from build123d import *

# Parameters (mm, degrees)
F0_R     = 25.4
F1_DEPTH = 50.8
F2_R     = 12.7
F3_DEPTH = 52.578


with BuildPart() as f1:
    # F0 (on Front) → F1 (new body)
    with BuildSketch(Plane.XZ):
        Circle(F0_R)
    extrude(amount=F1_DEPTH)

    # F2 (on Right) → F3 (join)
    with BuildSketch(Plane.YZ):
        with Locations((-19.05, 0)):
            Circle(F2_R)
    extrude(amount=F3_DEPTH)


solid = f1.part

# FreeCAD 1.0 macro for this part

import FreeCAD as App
import Part
import Sketcher

V = App.Vector
Q = App.Units.Quantity

doc = App.newDocument("Part")
body = doc.addObject("PartDesign::Body", "Body")

sketch1 = body.newObject("Sketcher::SketchObject", "Sketch")
sketch1.AttachmentSupport = (doc.getObject("XZ_Plane"), [""])
sketch1.MapMode = "FlatFace"
sketch1.addGeometry(Part.Circle(V(0, 0, 0), V(0, 0, 1), 25.4), False)
sketch1.addConstraint(Sketcher.Constraint("Coincident", 0, 3, -1, 1))
sketch1.addConstraint(Sketcher.Constraint("Diameter", 0, Q("2 in")))
pad1 = body.newObject("PartDesign::Pad", "Pad")
pad1.Profile = sketch1
pad1.Length = Q("2 in")

sketch2 = body.newObject("Sketcher::SketchObject", "Sketch001")
sketch2.AttachmentSupport = (doc.getObject("YZ_Plane"), [""])
sketch2.MapMode = "FlatFace"
sketch2.addGeometry(Part.Circle(V(-19.05, 0, 0), V(0, 0, 1), 12.7), False)
sketch2.addConstraint(Sketcher.Constraint("PointOnObject", 0, 3, -1))
sketch2.addConstraint(Sketcher.Constraint("Diameter", 0, Q("1 in")))
sketch2.addConstraint(Sketcher.Constraint("DistanceX", 0, 3, -1, 1, Q("0.75 in")))
pad2 = body.newObject("PartDesign::Pad", "Pad001")
pad2.Profile = sketch2
pad2.Length = Q("2.07 in")

doc.recompute()
